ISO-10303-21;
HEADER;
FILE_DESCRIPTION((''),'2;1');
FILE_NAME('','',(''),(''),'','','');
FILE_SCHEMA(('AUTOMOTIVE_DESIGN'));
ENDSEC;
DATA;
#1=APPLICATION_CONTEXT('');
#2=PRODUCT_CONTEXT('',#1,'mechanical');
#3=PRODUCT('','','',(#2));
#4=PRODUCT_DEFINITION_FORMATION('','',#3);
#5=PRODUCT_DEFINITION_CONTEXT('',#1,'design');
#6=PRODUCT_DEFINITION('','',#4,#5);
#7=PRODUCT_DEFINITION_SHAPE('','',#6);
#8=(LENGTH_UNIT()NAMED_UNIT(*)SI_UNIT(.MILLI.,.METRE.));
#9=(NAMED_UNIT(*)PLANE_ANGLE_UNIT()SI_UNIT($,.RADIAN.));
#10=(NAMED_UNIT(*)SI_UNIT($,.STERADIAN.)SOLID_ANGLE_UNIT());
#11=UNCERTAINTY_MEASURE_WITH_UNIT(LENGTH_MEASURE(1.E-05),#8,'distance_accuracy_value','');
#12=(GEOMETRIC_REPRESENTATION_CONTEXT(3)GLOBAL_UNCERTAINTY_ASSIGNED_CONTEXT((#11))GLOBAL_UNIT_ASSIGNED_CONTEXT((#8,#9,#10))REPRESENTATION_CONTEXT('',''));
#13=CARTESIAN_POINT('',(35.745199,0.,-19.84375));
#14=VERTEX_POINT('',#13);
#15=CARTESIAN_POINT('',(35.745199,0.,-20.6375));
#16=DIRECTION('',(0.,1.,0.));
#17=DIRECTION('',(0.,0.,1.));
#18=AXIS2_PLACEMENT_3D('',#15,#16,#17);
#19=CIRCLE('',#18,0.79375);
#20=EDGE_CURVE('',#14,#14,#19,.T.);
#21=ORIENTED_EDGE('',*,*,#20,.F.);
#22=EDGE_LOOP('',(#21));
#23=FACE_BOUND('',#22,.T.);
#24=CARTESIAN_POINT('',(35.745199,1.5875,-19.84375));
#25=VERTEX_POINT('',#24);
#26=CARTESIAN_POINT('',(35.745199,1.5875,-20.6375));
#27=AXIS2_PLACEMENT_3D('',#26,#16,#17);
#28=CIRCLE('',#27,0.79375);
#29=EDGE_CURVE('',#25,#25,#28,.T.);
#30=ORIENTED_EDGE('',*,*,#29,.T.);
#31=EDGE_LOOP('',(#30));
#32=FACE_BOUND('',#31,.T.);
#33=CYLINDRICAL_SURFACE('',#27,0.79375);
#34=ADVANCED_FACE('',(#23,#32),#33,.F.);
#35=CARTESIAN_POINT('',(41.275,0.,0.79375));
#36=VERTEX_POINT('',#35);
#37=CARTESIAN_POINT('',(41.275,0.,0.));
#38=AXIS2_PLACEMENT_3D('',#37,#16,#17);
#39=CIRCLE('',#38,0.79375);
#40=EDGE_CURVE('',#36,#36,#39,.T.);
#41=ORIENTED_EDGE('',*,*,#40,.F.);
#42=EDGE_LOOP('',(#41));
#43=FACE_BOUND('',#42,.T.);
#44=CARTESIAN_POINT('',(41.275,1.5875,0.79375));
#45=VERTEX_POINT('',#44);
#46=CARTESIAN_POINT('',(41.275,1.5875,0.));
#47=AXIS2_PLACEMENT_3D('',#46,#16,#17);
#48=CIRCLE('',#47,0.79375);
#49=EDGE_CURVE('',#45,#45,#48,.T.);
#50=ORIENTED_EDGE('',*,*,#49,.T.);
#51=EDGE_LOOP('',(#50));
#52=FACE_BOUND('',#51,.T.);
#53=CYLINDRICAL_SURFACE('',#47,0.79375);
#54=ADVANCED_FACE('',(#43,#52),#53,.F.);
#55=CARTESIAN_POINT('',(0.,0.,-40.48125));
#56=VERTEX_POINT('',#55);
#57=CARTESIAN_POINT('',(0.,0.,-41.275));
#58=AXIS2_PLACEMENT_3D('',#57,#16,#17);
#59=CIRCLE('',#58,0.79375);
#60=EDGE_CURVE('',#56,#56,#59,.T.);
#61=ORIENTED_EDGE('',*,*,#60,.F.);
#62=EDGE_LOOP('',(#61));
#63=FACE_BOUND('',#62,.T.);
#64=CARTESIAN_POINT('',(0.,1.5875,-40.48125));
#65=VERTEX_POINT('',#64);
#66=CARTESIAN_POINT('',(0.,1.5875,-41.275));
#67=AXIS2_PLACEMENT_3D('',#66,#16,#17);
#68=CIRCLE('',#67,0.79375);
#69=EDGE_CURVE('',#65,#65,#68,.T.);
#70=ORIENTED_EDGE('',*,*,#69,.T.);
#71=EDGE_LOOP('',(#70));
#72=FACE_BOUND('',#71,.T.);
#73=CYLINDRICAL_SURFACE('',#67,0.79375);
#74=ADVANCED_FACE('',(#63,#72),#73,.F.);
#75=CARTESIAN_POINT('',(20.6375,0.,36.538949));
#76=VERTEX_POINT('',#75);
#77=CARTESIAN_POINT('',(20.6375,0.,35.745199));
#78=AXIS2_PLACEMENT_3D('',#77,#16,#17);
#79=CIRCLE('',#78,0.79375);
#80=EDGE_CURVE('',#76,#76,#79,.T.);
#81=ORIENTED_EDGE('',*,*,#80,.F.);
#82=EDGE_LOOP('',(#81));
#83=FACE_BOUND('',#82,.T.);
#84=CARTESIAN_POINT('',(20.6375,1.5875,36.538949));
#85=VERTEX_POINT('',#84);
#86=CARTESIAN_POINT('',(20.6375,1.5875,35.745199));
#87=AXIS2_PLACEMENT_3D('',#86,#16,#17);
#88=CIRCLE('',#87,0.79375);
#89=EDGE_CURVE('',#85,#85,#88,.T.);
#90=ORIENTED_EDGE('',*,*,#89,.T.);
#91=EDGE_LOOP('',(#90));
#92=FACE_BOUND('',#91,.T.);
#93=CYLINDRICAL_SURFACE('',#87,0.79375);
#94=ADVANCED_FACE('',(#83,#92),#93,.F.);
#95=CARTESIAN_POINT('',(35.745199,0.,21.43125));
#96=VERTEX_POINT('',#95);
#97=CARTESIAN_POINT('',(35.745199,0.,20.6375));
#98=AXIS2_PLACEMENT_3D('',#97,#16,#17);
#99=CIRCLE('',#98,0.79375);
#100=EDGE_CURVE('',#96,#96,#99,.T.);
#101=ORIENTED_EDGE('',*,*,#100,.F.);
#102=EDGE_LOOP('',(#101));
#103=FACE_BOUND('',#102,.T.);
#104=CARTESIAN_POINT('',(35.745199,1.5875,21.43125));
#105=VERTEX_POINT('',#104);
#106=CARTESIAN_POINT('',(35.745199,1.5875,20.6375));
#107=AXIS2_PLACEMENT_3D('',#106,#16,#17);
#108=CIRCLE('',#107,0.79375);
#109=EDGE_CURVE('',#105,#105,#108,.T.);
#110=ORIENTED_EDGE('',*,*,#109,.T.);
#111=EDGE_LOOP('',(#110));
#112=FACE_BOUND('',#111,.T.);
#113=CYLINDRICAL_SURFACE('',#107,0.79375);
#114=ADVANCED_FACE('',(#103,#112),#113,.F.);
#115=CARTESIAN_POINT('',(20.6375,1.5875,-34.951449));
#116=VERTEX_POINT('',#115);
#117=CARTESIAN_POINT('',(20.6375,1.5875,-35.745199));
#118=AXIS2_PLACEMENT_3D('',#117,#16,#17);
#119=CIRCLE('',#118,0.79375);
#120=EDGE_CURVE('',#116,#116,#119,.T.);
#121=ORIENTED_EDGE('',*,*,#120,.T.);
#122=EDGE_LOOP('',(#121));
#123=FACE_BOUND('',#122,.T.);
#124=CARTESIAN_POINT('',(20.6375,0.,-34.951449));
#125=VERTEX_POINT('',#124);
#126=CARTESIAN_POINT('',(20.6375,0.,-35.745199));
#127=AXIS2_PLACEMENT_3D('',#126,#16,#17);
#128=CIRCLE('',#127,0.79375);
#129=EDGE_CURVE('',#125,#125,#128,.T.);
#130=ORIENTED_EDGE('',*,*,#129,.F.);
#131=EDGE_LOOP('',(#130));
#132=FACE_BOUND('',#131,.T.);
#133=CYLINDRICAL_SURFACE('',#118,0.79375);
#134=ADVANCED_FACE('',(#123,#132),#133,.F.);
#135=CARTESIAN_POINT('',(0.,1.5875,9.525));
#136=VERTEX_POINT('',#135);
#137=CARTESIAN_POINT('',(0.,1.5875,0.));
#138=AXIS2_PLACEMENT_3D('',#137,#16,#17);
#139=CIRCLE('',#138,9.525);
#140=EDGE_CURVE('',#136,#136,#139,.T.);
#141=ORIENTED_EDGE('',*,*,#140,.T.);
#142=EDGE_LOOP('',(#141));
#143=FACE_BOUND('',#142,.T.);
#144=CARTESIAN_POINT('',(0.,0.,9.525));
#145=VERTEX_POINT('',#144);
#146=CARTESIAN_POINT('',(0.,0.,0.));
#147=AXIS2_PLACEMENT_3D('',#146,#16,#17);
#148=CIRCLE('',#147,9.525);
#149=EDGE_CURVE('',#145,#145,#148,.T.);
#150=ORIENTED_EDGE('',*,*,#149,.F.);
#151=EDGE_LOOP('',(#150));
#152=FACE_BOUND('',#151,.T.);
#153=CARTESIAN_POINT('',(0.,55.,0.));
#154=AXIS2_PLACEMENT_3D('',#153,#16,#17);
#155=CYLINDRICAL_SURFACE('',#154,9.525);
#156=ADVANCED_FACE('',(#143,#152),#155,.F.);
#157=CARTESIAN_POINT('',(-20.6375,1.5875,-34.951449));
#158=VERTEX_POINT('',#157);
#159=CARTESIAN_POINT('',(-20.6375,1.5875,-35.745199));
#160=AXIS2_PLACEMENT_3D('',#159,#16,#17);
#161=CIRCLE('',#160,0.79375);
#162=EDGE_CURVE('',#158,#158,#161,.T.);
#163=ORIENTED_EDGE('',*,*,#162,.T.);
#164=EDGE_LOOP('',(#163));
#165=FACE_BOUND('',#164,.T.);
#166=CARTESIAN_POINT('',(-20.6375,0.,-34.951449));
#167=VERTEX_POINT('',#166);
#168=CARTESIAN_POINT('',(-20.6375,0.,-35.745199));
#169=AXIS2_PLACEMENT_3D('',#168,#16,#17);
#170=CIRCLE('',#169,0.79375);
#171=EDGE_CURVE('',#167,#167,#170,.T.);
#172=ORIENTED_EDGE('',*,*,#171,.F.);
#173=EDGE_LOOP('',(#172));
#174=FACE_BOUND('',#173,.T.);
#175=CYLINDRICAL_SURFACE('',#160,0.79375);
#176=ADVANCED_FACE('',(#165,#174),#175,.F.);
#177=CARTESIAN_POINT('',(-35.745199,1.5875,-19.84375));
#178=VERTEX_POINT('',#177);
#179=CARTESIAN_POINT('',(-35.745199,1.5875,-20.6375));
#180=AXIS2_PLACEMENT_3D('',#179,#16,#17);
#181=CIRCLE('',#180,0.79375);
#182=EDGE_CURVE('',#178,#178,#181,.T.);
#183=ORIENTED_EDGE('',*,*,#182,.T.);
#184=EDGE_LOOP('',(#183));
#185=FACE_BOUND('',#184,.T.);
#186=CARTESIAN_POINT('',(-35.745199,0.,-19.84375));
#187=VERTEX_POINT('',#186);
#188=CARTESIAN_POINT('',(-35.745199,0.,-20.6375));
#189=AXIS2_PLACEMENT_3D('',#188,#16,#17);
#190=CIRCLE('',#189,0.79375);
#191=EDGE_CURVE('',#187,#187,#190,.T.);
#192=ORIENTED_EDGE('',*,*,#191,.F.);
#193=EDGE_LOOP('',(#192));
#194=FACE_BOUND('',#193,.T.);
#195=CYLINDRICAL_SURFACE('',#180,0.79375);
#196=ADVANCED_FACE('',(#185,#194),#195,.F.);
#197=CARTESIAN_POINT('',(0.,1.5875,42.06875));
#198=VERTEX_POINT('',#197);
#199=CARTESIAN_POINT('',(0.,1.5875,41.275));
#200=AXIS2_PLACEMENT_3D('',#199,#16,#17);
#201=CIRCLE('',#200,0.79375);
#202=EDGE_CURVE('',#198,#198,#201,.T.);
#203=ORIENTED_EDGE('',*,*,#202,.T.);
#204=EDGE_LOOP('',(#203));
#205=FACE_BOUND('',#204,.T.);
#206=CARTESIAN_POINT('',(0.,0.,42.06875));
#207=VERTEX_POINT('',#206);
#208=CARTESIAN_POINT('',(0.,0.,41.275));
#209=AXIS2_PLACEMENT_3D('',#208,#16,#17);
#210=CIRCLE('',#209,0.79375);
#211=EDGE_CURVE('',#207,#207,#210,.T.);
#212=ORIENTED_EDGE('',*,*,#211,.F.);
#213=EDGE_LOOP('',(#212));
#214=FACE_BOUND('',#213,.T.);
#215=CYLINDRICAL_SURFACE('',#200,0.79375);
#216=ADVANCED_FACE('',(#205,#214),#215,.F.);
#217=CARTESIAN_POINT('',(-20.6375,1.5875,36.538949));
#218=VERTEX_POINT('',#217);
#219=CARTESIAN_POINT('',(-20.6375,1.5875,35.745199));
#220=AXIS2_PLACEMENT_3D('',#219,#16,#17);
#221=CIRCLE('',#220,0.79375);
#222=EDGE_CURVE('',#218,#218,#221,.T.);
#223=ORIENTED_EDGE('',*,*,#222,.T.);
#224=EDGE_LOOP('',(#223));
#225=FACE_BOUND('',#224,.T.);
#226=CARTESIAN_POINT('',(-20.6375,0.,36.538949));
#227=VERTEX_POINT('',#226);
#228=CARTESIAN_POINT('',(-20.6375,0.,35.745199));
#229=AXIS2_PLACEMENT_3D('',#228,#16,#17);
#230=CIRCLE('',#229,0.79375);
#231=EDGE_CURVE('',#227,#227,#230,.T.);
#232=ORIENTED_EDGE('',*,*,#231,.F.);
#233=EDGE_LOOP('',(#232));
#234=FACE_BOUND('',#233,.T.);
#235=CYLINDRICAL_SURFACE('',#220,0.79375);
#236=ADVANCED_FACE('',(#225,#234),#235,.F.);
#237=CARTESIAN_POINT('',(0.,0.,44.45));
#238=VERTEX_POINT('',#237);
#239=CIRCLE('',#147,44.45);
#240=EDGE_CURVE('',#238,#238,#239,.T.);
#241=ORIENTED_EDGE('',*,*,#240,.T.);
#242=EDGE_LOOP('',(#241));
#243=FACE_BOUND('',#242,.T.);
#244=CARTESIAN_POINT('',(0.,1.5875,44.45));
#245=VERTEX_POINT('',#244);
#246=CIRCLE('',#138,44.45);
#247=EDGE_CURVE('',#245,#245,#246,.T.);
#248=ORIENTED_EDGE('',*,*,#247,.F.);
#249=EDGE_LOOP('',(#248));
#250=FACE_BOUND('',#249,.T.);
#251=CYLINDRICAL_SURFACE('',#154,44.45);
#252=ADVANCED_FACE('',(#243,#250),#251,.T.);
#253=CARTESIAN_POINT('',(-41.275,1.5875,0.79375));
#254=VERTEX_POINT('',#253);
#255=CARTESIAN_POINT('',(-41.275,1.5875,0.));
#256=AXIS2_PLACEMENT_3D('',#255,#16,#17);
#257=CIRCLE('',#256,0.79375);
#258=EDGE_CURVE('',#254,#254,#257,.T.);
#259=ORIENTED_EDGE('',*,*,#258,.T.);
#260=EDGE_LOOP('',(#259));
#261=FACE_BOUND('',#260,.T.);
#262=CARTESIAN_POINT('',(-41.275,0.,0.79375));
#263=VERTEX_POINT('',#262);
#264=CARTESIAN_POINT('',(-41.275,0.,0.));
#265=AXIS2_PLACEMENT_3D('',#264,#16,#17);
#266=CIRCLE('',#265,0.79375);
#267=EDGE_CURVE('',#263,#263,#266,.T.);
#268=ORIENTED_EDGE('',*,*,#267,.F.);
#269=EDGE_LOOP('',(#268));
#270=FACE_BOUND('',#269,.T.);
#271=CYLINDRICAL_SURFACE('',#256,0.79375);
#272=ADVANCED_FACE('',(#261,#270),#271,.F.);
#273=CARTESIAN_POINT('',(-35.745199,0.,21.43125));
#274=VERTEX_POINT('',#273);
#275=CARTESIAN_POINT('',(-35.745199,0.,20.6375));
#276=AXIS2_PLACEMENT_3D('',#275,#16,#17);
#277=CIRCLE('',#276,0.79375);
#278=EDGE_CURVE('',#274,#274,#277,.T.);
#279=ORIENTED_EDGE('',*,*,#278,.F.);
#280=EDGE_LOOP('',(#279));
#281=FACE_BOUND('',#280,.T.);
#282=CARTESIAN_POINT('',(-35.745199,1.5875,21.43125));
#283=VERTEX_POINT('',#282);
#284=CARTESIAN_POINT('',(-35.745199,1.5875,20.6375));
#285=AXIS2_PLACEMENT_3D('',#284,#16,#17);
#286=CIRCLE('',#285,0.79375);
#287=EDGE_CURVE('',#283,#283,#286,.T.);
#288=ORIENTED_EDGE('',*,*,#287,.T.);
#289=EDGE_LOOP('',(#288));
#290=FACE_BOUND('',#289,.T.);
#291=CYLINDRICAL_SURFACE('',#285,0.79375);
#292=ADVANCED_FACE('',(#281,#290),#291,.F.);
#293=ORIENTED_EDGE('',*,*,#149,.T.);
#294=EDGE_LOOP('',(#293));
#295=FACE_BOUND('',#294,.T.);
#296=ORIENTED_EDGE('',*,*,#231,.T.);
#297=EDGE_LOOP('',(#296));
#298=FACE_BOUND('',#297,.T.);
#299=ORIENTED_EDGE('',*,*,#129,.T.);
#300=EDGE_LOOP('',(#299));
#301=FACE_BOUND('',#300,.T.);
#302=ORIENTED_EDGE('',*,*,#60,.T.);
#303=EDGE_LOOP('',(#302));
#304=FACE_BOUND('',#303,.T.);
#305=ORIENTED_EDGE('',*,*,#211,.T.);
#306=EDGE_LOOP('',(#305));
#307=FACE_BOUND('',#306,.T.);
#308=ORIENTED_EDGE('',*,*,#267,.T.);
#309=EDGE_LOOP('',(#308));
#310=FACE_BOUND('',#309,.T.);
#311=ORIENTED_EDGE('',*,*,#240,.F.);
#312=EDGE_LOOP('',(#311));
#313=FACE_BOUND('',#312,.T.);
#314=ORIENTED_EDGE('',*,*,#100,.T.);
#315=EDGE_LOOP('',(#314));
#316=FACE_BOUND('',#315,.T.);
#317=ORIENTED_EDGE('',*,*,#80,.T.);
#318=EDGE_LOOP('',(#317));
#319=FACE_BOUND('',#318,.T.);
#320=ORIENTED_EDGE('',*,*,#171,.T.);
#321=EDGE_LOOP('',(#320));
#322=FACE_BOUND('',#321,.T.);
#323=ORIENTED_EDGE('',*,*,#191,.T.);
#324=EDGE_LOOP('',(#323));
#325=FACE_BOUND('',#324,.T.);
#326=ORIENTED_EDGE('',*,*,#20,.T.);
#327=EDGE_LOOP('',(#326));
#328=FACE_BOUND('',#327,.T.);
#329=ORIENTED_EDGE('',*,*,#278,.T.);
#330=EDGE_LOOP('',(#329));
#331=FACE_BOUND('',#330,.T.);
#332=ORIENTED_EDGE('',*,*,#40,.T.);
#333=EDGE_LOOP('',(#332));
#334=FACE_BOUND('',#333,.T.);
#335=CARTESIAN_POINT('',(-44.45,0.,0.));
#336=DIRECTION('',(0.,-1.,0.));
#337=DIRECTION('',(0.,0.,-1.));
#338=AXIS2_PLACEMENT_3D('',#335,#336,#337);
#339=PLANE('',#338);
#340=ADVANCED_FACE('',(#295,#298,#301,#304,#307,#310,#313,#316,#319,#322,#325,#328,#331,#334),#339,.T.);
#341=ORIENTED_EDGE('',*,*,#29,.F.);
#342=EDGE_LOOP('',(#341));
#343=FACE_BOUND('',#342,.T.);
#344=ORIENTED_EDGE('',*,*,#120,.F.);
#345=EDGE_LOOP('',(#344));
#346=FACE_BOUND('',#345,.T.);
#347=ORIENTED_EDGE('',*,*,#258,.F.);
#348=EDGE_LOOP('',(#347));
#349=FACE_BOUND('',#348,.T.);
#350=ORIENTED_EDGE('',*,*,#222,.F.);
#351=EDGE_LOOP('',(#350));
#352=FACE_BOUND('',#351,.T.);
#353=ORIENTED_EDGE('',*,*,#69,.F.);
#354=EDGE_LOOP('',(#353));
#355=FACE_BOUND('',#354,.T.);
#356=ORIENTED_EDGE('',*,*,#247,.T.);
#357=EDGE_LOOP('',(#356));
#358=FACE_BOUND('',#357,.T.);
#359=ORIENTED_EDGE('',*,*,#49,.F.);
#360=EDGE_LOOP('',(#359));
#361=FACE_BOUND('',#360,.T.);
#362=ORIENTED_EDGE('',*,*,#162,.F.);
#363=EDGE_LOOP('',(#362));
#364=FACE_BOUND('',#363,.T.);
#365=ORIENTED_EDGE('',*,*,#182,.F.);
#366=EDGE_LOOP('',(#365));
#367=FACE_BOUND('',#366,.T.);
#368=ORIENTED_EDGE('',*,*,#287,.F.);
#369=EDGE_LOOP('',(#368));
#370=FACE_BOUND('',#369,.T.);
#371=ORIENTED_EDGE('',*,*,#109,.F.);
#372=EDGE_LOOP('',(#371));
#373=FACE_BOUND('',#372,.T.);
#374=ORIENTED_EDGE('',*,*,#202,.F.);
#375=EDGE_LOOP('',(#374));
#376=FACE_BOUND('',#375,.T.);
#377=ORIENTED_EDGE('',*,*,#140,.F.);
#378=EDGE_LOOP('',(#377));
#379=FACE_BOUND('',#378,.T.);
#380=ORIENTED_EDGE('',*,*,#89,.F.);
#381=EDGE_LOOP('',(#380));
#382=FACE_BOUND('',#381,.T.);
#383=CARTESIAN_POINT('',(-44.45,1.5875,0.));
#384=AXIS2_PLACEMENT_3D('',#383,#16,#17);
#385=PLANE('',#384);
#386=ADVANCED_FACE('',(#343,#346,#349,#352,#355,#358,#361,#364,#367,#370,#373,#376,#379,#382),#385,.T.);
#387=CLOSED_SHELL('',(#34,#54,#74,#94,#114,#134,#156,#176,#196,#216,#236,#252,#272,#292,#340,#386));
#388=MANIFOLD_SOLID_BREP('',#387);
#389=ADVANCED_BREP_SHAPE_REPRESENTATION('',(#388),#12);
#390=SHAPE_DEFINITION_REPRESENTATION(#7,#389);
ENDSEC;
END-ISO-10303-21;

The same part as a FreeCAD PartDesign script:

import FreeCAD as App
import Part
import Sketcher

V = App.Vector
Q = App.Units.Quantity


def add_polygon(sketch, points):
    """Adds a closed chain of lines whose ends are joined by coincident constraints."""
    first, n = sketch.GeometryCount, len(points)
    for a, b in zip(points, points[1:] + points[:1]):
        sketch.addGeometry(Part.LineSegment(App.Vector(*a, 0), App.Vector(*b, 0)), False)
    for i in range(n):
        sketch.addConstraint(Sketcher.Constraint("Coincident", first + i, 2, first + (i + 1) % n, 1))

doc = App.newDocument("Part")
body = doc.addObject("PartDesign::Body", "Body")

sketch1 = doc.addObject("Sketcher::SketchObject", "Sketch")
body.addObject(sketch1)
sketch1.AttachmentSupport = (doc.XY_Plane, [""])
sketch1.MapMode = "FlatFace"
add_polygon(sketch1, [(-44.5, 1.6), (-44.5, 0), (-9.5, 0), (-9.5, 1.6)])
sketch1.addConstraint(Sketcher.Constraint("Vertical", 0))
sketch1.addConstraint(Sketcher.Constraint("Horizontal", 1))
sketch1.addConstraint(Sketcher.Constraint("Vertical", 2))
sketch1.addConstraint(Sketcher.Constraint("Horizontal", 3))
sketch1.addConstraint(Sketcher.Constraint("PointOnObject", 0, 2, -1))
sketch1.addConstraint(Sketcher.Constraint("DistanceX", 1, 1, 1, 2, Q("1.375 in")))
sketch1.addConstraint(Sketcher.Constraint("DistanceY", 0, 2, 0, 1, Q("0.0625 in")))
sketch1.addConstraint(Sketcher.Constraint("DistanceX", 0, 2, -1, 1, Q("1.75 in")))
revolution = doc.addObject("PartDesign::Revolution", "Revolution")
body.addObject(revolution)
revolution.Profile = sketch1
revolution.ReferenceAxis = (sketch1, ["V_Axis"])
revolution.Angle = 360

sketch2 = doc.addObject("Sketcher::SketchObject", "Sketch001")
body.addObject(sketch2)
sketch2.AttachmentSupport = (doc.XZ_Plane, [""])
sketch2.MapMode = "FlatFace"
sketch2.AttachmentOffset = App.Placement(V(0, 0, -0.0625 * 25.4), App.Rotation())
sketch2.addGeometry(Part.Circle(V(-41.3, 0, 0), V(0, 0, 1), 0.8), False)
sketch2.addConstraint(Sketcher.Constraint("PointOnObject", 0, 3, -1))
sketch2.addConstraint(Sketcher.Constraint("Diameter", 0, Q("0.0625 in")))
sketch2.addConstraint(Sketcher.Constraint("DistanceX", 0, 3, -1, 1, Q("1.625 in")))
doc.recompute()
hole = doc.addObject("PartDesign::Hole", "Hole")
body.addObject(hole)
hole.Profile = sketch2
hole.ThreadType = "None"
hole.Diameter = Q("0.0625 in")
hole.DepthType = "ThroughAll"
hole.Reversed = True
doc.recompute()

polarpattern = doc.addObject("PartDesign::PolarPattern", "PolarPattern")
body.addObject(polarpattern)
polarpattern.Originals = [hole]
polarpattern.Axis = (doc.Y_Axis, [""])
polarpattern.Angle = 360
polarpattern.Occurrences = 12
body.Tip = polarpattern

doc.recompute()
